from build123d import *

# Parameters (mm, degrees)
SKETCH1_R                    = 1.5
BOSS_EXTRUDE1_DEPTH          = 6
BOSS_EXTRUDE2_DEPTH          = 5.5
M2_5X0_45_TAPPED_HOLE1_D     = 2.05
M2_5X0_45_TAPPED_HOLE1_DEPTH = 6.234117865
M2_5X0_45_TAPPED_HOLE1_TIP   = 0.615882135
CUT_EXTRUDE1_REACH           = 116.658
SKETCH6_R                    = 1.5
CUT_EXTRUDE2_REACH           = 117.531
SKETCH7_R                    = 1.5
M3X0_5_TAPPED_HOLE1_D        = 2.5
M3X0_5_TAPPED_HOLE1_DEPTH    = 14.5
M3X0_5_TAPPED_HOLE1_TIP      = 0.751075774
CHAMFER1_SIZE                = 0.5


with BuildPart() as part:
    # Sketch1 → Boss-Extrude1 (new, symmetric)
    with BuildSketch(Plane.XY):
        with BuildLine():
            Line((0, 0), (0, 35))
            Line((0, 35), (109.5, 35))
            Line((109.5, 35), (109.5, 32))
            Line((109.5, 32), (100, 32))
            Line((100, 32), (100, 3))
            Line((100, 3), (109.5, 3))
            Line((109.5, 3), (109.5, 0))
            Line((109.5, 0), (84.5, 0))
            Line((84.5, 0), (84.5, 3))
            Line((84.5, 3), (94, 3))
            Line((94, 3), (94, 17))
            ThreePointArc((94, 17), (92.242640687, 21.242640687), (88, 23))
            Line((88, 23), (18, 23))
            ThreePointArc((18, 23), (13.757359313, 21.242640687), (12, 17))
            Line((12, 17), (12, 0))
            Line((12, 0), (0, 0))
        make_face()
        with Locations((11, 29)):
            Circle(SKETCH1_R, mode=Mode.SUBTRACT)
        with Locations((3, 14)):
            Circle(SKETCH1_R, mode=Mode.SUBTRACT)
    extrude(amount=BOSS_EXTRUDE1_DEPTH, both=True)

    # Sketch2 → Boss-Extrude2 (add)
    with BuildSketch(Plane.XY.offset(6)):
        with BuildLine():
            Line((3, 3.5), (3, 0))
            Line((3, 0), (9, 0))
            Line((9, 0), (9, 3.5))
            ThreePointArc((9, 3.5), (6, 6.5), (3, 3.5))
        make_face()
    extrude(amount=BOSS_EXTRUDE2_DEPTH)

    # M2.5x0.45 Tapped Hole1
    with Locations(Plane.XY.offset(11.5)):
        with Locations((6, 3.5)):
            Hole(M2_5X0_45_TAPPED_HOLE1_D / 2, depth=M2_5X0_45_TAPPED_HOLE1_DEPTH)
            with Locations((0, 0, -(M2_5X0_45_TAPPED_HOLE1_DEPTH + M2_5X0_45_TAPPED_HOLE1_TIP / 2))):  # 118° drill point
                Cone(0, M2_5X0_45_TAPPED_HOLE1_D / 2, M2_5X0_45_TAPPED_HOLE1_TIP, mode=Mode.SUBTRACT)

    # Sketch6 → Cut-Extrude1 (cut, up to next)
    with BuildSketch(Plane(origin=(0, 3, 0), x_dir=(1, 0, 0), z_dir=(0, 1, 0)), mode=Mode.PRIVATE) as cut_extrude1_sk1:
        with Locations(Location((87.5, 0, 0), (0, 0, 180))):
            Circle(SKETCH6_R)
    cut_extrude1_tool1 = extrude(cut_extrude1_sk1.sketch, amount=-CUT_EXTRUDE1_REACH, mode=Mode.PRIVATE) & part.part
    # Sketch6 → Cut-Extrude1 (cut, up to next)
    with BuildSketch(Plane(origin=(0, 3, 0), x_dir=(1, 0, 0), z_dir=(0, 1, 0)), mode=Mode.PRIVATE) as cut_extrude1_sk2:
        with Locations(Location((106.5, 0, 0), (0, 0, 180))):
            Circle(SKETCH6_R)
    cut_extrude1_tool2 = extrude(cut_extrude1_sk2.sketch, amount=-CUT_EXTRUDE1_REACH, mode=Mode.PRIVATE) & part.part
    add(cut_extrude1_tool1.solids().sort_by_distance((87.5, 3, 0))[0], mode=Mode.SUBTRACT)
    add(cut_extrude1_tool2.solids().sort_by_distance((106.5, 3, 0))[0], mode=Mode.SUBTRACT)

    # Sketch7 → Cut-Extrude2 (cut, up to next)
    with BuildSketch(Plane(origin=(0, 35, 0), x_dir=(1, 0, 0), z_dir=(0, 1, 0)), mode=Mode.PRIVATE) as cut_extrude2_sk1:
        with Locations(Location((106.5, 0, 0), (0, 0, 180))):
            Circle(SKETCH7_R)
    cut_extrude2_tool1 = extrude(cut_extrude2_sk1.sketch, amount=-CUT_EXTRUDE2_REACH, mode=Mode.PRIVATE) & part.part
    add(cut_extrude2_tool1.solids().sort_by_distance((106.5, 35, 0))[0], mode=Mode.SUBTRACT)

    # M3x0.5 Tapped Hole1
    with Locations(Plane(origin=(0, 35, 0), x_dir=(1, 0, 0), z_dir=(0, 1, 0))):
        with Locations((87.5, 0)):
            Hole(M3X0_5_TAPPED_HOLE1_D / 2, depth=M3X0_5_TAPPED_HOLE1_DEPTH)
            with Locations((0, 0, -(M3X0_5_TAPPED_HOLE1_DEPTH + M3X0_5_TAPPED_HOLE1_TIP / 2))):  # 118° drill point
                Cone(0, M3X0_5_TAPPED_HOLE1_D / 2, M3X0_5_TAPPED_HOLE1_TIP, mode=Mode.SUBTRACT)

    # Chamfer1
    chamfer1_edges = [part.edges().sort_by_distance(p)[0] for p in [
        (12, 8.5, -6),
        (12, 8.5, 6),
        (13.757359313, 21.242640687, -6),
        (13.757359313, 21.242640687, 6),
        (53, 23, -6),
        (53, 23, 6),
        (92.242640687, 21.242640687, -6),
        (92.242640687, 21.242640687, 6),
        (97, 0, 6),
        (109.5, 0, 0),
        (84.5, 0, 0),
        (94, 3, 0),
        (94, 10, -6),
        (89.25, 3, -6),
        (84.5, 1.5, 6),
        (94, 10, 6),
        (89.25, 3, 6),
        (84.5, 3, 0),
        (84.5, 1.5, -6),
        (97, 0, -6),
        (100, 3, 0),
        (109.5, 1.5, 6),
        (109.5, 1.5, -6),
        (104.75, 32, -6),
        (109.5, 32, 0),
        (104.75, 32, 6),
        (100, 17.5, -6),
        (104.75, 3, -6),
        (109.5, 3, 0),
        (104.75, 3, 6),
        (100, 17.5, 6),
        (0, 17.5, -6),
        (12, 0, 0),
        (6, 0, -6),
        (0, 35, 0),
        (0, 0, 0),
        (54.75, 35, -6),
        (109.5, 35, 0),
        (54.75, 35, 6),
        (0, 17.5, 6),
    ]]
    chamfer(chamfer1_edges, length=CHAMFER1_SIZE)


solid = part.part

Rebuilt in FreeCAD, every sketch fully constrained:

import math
import FreeCAD as App
import Part
import Sketcher

V = App.Vector


def edges_at(feature, points):
    """Names of the edges that pass closest to the given points."""
    edges = feature.Shape.Edges
    near = lambda p: min(range(len(edges)), key=lambda i: edges[i].distToShape(Part.Vertex(*p))[0])
    return sorted({f"Edge{near(p) + 1}" for p in points})

doc = App.newDocument("Part")
body = doc.addObject("PartDesign::Body", "Body")

# Sketch on XY plane
sketch1 = body.newObject("Sketcher::SketchObject", "Sketch")
sketch1.AttachmentSupport = (doc.getObject("XY_Plane"), [""])
sketch1.MapMode = "FlatFace"
sketch1.addGeometry([
    Part.LineSegment(V(0, 35, 0), V(0, 0, 0)),  # 0
    Part.LineSegment(V(0, 0, 0), V(12, 0, 0)),  # 1
    Part.LineSegment(V(12, 0, 0), V(12, 17, 0)),  # 2
    Part.ArcOfCircle(Part.Circle(V(18, 17, 0), V(0, 0, 1), 6), math.radians(90), math.radians(180)),  # 3
    Part.LineSegment(V(18, 23, 0), V(88, 23, 0)),  # 4
    Part.ArcOfCircle(Part.Circle(V(88, 17, 0), V(0, 0, 1), 6), math.radians(0), math.radians(90)),  # 5
    Part.LineSegment(V(94, 17, 0), V(94, 3, 0)),  # 6
    Part.LineSegment(V(94, 3, 0), V(84.5, 3, 0)),  # 7
    Part.LineSegment(V(84.5, 3, 0), V(84.5, 0, 0)),  # 8
    Part.LineSegment(V(84.5, 0, 0), V(109.5, 0, 0)),  # 9
    Part.LineSegment(V(109.5, 0, 0), V(109.5, 3, 0)),  # 10
    Part.LineSegment(V(109.5, 3, 0), V(100, 3, 0)),  # 11
    Part.LineSegment(V(100, 3, 0), V(100, 32, 0)),  # 12
    Part.LineSegment(V(100, 32, 0), V(109.5, 32, 0)),  # 13
    Part.LineSegment(V(109.5, 32, 0), V(109.5, 35, 0)),  # 14
    Part.LineSegment(V(109.5, 35, 0), V(0, 35, 0)),  # 15
    Part.Circle(V(3, 14, 0), V(0, 0, 1), 1.5),  # 16
    Part.Circle(V(11, 29, 0), V(0, 0, 1), 1.5),  # 17
], False)
sketch1.addConstraint([
    Sketcher.Constraint("Coincident", 0, 2, 1, 1),
    Sketcher.Constraint("Coincident", 1, 2, 2, 1),
    Sketcher.Constraint("Tangent", 2, 2, 3, 2),
    Sketcher.Constraint("Tangent", 3, 1, 4, 1),
    Sketcher.Constraint("Tangent", 4, 2, 5, 2),
    Sketcher.Constraint("Tangent", 5, 1, 6, 1),
    Sketcher.Constraint("Coincident", 6, 2, 7, 1),
    Sketcher.Constraint("Coincident", 7, 2, 8, 1),
    Sketcher.Constraint("Coincident", 8, 2, 9, 1),
    Sketcher.Constraint("Coincident", 9, 2, 10, 1),
    Sketcher.Constraint("Coincident", 10, 2, 11, 1),
    Sketcher.Constraint("Coincident", 11, 2, 12, 1),
    Sketcher.Constraint("Coincident", 12, 2, 13, 1),
    Sketcher.Constraint("Coincident", 13, 2, 14, 1),
    Sketcher.Constraint("Coincident", 14, 2, 15, 1),
    Sketcher.Constraint("Coincident", 15, 2, 0, 1),
    Sketcher.Constraint("Vertical", 0),
    Sketcher.Constraint("Horizontal", 1),
    Sketcher.Constraint("Vertical", 2),
    Sketcher.Constraint("Horizontal", 4),
    Sketcher.Constraint("Vertical", 6),
    Sketcher.Constraint("Horizontal", 7),
    Sketcher.Constraint("Vertical", 8),
    Sketcher.Constraint("Horizontal", 9),
    Sketcher.Constraint("Vertical", 10),
    Sketcher.Constraint("Horizontal", 11),
    Sketcher.Constraint("Vertical", 12),
    Sketcher.Constraint("Horizontal", 13),
    Sketcher.Constraint("Vertical", 14),
    Sketcher.Constraint("Horizontal", 15),
    Sketcher.Constraint("Coincident", 0, 2, -1, 1),
    Sketcher.Constraint("Equal", 3, 5),
    Sketcher.Constraint("Equal", 16, 17),
    Sketcher.Constraint("PointOnObject", 8, 2, -1),
    Sketcher.Constraint("Horizontal", 7, 2, 10, 2),
    Sketcher.Constraint("Vertical", 10, 2, 13, 2),
    Sketcher.Constraint("Equal", 7, 11),
    Sketcher.Constraint("Equal", 10, 14),
    Sketcher.Constraint("Diameter", 16, 3.0),
    Sketcher.Constraint("Radius", 3, 6.0),
    Sketcher.Constraint("DistanceX", 1, 1, 1, 2, 12.0),
    Sketcher.Constraint("DistanceX", 4, 1, 4, 2, 70.0),
    Sketcher.Constraint("DistanceX", 9, 1, 9, 2, 25.0),
    Sketcher.Constraint("DistanceY", 0, 2, 0, 1, 35.0),
    Sketcher.Constraint("DistanceY", 2, 1, 2, 2, 17.0),
    Sketcher.Constraint("DistanceY", 6, 2, 6, 1, 14.0),
    Sketcher.Constraint("DistanceX", 7, 2, 7, 1, 9.5),
    Sketcher.Constraint("DistanceX", -1, 1, 16, 3, 3.0),
    Sketcher.Constraint("DistanceY", -1, 1, 16, 3, 14.0),
    Sketcher.Constraint("DistanceX", -1, 1, 17, 3, 11.0),
    Sketcher.Constraint("DistanceY", -1, 1, 17, 3, 29.0),
])
pad1 = body.newObject("PartDesign::Pad", "Pad")
pad1.Profile = sketch1
pad1.Length = 12
pad1.Midplane = True

# Sketch on XY plane
sketch2 = body.newObject("Sketcher::SketchObject", "Sketch001")
sketch2.AttachmentSupport = (doc.getObject("XY_Plane"), [""])
sketch2.MapMode = "FlatFace"
sketch2.AttachmentOffset = App.Placement(V(0, 0, 6), App.Rotation())
sketch2.addGeometry([
    Part.LineSegment(V(3, 3.5, 0), V(3, 0, 0)),
    Part.LineSegment(V(3, 0, 0), V(9, 0, 0)),
    Part.LineSegment(V(9, 0, 0), V(9, 3.5, 0)),
    Part.ArcOfCircle(Part.Circle(V(6, 3.5, 0), V(0, 0, 1), 3), math.radians(0), math.radians(180)),
], False)
sketch2.addConstraint([
    Sketcher.Constraint("Coincident", 0, 2, 1, 1),
    Sketcher.Constraint("Coincident", 1, 2, 2, 1),
    Sketcher.Constraint("Tangent", 2, 2, 3, 1),
    Sketcher.Constraint("Tangent", 3, 2, 0, 1),
    Sketcher.Constraint("Vertical", 0),
    Sketcher.Constraint("Horizontal", 1),
    Sketcher.Constraint("Vertical", 2),
    Sketcher.Constraint("PointOnObject", 0, 2, -1),
    Sketcher.Constraint("Radius", 3, 3.0),
    Sketcher.Constraint("DistanceY", 0, 2, 0, 1, 3.5),
    Sketcher.Constraint("DistanceX", -1, 1, 3, 3, 6.0),
])
pad2 = body.newObject("PartDesign::Pad", "Pad001")
pad2.Profile = sketch2
pad2.Length = 5.5

# Sketch on XY plane
sketch3 = body.newObject("Sketcher::SketchObject", "Sketch002")
sketch3.AttachmentSupport = (doc.getObject("XY_Plane"), [""])
sketch3.MapMode = "FlatFace"
sketch3.AttachmentOffset = App.Placement(V(0, 0, 11.5), App.Rotation())
sketch3.addGeometry(Part.Circle(V(6, 3.5, 0), V(0, 0, 1), 1), False)
sketch3.addConstraint([
    Sketcher.Constraint("Diameter", 0, 2.05),
    Sketcher.Constraint("DistanceX", -1, 1, 0, 3, 6.0),
    Sketcher.Constraint("DistanceY", -1, 1, 0, 3, 3.5),
])
doc.recompute()
hole = body.newObject("PartDesign::Hole", "Hole")
hole.Profile = sketch3
hole.ThreadType = "None"
hole.Diameter = 2.05
hole.DepthType = "Dimension"
hole.Depth = 6.234118
hole.DrillPoint = "Angled"
hole.DrillPointAngle = 118

# Sketch on XZ plane
sketch4 = body.newObject("Sketcher::SketchObject", "Sketch003")
sketch4.AttachmentSupport = (doc.getObject("XZ_Plane"), [""])
sketch4.MapMode = "FlatFace"
sketch4.AttachmentOffset = App.Placement(V(0, 0, -3), App.Rotation())
sketch4.addGeometry(Part.Circle(V(87.5, 0, 0), V(0, 0, 1), 1.5), False)
sketch4.addConstraint([
    Sketcher.Constraint("PointOnObject", 0, 3, -1),
    Sketcher.Constraint("Diameter", 0, 3.0),
    Sketcher.Constraint("DistanceX", -1, 1, 0, 3, 87.5),
])
pocket1 = body.newObject("PartDesign::Pocket", "Pocket")
pocket1.Profile = sketch4
pocket1.Type = "UpToFirst"
pocket1.Reversed = True

# Sketch on XZ plane
sketch5 = body.newObject("Sketcher::SketchObject", "Sketch004")
sketch5.AttachmentSupport = (doc.getObject("XZ_Plane"), [""])
sketch5.MapMode = "FlatFace"
sketch5.AttachmentOffset = App.Placement(V(0, 0, -3), App.Rotation())
sketch5.addGeometry(Part.Circle(V(106.5, 0, 0), V(0, 0, 1), 1.5), False)
sketch5.addConstraint([
    Sketcher.Constraint("PointOnObject", 0, 3, -1),
    Sketcher.Constraint("Diameter", 0, 3.0),
    Sketcher.Constraint("DistanceX", -1, 1, 0, 3, 106.5),
])
pocket2 = body.newObject("PartDesign::Pocket", "Pocket001")
pocket2.Profile = sketch5
pocket2.Type = "UpToFirst"
pocket2.Reversed = True

# Sketch on XZ plane
sketch6 = body.newObject("Sketcher::SketchObject", "Sketch005")
sketch6.AttachmentSupport = (doc.getObject("XZ_Plane"), [""])
sketch6.MapMode = "FlatFace"
sketch6.AttachmentOffset = App.Placement(V(0, 0, -35), App.Rotation())
sketch6.addGeometry(Part.Circle(V(106.5, 0, 0), V(0, 0, 1), 1.5), False)
sketch6.addConstraint([
    Sketcher.Constraint("PointOnObject", 0, 3, -1),
    Sketcher.Constraint("Diameter", 0, 3.0),
    Sketcher.Constraint("DistanceX", -1, 1, 0, 3, 106.5),
])
pocket3 = body.newObject("PartDesign::Pocket", "Pocket002")
pocket3.Profile = sketch6
pocket3.Type = "UpToFirst"
pocket3.Reversed = True

# Sketch on XZ plane
sketch7 = body.newObject("Sketcher::SketchObject", "Sketch006")
sketch7.AttachmentSupport = (doc.getObject("XZ_Plane"), [""])
sketch7.MapMode = "FlatFace"
sketch7.AttachmentOffset = App.Placement(V(0, 0, -35), App.Rotation())
sketch7.addGeometry(Part.Circle(V(87.5, 0, 0), V(0, 0, 1), 1.2), False)
sketch7.addConstraint([
    Sketcher.Constraint("PointOnObject", 0, 3, -1),
    Sketcher.Constraint("Diameter", 0, 2.5),
    Sketcher.Constraint("DistanceX", -1, 1, 0, 3, 87.5),
])
doc.recompute()
hole2 = body.newObject("PartDesign::Hole", "Hole001")
hole2.Profile = sketch7
hole2.ThreadType = "None"
hole2.Diameter = 2.5
hole2.DepthType = "Dimension"
hole2.Depth = 14.5
hole2.DrillPoint = "Angled"
hole2.DrillPointAngle = 118
hole2.Reversed = True
doc.recompute()

chamfer = body.newObject("PartDesign::Chamfer", "Chamfer")
chamfer.Base = (hole2, edges_at(hole2, [
    (12, 8.5, -6),
    (12, 8.5, 6),
    (13.757, 21.243, -6),
    (13.757, 21.243, 6),
    (53, 23, -6),
    (53, 23, 6),
    (92.243, 21.243, -6),
    (92.243, 21.243, 6),
    (97, 0, 6),
    (109.5, 0, 0),
    (84.5, 0, 0),
    (94, 3, 0),
    (94, 10, -6),
    (89.25, 3, -6),
    (84.5, 1.5, 6),
    (94, 10, 6),
    (89.25, 3, 6),
    (84.5, 3, 0),
    (84.5, 1.5, -6),
    (97, 0, -6),
    (100, 3, 0),
    (109.5, 1.5, 6),
    (109.5, 1.5, -6),
    (104.75, 32, -6),
    (109.5, 32, 0),
    (104.75, 32, 6),
    (100, 17.5, -6),
    (104.75, 3, -6),
    (109.5, 3, 0),
    (104.75, 3, 6),
    (100, 17.5, 6),
    (0, 17.5, -6),
    (12, 0, 0),
    (6, 0, -6),
    (0, 35, 0),
    (0, 0, 0),
    (54.75, 35, -6),
    (109.5, 35, 0),
    (54.75, 35, 6),
    (0, 17.5, 6),
]))
chamfer.Size = 0.5

doc.recompute()
